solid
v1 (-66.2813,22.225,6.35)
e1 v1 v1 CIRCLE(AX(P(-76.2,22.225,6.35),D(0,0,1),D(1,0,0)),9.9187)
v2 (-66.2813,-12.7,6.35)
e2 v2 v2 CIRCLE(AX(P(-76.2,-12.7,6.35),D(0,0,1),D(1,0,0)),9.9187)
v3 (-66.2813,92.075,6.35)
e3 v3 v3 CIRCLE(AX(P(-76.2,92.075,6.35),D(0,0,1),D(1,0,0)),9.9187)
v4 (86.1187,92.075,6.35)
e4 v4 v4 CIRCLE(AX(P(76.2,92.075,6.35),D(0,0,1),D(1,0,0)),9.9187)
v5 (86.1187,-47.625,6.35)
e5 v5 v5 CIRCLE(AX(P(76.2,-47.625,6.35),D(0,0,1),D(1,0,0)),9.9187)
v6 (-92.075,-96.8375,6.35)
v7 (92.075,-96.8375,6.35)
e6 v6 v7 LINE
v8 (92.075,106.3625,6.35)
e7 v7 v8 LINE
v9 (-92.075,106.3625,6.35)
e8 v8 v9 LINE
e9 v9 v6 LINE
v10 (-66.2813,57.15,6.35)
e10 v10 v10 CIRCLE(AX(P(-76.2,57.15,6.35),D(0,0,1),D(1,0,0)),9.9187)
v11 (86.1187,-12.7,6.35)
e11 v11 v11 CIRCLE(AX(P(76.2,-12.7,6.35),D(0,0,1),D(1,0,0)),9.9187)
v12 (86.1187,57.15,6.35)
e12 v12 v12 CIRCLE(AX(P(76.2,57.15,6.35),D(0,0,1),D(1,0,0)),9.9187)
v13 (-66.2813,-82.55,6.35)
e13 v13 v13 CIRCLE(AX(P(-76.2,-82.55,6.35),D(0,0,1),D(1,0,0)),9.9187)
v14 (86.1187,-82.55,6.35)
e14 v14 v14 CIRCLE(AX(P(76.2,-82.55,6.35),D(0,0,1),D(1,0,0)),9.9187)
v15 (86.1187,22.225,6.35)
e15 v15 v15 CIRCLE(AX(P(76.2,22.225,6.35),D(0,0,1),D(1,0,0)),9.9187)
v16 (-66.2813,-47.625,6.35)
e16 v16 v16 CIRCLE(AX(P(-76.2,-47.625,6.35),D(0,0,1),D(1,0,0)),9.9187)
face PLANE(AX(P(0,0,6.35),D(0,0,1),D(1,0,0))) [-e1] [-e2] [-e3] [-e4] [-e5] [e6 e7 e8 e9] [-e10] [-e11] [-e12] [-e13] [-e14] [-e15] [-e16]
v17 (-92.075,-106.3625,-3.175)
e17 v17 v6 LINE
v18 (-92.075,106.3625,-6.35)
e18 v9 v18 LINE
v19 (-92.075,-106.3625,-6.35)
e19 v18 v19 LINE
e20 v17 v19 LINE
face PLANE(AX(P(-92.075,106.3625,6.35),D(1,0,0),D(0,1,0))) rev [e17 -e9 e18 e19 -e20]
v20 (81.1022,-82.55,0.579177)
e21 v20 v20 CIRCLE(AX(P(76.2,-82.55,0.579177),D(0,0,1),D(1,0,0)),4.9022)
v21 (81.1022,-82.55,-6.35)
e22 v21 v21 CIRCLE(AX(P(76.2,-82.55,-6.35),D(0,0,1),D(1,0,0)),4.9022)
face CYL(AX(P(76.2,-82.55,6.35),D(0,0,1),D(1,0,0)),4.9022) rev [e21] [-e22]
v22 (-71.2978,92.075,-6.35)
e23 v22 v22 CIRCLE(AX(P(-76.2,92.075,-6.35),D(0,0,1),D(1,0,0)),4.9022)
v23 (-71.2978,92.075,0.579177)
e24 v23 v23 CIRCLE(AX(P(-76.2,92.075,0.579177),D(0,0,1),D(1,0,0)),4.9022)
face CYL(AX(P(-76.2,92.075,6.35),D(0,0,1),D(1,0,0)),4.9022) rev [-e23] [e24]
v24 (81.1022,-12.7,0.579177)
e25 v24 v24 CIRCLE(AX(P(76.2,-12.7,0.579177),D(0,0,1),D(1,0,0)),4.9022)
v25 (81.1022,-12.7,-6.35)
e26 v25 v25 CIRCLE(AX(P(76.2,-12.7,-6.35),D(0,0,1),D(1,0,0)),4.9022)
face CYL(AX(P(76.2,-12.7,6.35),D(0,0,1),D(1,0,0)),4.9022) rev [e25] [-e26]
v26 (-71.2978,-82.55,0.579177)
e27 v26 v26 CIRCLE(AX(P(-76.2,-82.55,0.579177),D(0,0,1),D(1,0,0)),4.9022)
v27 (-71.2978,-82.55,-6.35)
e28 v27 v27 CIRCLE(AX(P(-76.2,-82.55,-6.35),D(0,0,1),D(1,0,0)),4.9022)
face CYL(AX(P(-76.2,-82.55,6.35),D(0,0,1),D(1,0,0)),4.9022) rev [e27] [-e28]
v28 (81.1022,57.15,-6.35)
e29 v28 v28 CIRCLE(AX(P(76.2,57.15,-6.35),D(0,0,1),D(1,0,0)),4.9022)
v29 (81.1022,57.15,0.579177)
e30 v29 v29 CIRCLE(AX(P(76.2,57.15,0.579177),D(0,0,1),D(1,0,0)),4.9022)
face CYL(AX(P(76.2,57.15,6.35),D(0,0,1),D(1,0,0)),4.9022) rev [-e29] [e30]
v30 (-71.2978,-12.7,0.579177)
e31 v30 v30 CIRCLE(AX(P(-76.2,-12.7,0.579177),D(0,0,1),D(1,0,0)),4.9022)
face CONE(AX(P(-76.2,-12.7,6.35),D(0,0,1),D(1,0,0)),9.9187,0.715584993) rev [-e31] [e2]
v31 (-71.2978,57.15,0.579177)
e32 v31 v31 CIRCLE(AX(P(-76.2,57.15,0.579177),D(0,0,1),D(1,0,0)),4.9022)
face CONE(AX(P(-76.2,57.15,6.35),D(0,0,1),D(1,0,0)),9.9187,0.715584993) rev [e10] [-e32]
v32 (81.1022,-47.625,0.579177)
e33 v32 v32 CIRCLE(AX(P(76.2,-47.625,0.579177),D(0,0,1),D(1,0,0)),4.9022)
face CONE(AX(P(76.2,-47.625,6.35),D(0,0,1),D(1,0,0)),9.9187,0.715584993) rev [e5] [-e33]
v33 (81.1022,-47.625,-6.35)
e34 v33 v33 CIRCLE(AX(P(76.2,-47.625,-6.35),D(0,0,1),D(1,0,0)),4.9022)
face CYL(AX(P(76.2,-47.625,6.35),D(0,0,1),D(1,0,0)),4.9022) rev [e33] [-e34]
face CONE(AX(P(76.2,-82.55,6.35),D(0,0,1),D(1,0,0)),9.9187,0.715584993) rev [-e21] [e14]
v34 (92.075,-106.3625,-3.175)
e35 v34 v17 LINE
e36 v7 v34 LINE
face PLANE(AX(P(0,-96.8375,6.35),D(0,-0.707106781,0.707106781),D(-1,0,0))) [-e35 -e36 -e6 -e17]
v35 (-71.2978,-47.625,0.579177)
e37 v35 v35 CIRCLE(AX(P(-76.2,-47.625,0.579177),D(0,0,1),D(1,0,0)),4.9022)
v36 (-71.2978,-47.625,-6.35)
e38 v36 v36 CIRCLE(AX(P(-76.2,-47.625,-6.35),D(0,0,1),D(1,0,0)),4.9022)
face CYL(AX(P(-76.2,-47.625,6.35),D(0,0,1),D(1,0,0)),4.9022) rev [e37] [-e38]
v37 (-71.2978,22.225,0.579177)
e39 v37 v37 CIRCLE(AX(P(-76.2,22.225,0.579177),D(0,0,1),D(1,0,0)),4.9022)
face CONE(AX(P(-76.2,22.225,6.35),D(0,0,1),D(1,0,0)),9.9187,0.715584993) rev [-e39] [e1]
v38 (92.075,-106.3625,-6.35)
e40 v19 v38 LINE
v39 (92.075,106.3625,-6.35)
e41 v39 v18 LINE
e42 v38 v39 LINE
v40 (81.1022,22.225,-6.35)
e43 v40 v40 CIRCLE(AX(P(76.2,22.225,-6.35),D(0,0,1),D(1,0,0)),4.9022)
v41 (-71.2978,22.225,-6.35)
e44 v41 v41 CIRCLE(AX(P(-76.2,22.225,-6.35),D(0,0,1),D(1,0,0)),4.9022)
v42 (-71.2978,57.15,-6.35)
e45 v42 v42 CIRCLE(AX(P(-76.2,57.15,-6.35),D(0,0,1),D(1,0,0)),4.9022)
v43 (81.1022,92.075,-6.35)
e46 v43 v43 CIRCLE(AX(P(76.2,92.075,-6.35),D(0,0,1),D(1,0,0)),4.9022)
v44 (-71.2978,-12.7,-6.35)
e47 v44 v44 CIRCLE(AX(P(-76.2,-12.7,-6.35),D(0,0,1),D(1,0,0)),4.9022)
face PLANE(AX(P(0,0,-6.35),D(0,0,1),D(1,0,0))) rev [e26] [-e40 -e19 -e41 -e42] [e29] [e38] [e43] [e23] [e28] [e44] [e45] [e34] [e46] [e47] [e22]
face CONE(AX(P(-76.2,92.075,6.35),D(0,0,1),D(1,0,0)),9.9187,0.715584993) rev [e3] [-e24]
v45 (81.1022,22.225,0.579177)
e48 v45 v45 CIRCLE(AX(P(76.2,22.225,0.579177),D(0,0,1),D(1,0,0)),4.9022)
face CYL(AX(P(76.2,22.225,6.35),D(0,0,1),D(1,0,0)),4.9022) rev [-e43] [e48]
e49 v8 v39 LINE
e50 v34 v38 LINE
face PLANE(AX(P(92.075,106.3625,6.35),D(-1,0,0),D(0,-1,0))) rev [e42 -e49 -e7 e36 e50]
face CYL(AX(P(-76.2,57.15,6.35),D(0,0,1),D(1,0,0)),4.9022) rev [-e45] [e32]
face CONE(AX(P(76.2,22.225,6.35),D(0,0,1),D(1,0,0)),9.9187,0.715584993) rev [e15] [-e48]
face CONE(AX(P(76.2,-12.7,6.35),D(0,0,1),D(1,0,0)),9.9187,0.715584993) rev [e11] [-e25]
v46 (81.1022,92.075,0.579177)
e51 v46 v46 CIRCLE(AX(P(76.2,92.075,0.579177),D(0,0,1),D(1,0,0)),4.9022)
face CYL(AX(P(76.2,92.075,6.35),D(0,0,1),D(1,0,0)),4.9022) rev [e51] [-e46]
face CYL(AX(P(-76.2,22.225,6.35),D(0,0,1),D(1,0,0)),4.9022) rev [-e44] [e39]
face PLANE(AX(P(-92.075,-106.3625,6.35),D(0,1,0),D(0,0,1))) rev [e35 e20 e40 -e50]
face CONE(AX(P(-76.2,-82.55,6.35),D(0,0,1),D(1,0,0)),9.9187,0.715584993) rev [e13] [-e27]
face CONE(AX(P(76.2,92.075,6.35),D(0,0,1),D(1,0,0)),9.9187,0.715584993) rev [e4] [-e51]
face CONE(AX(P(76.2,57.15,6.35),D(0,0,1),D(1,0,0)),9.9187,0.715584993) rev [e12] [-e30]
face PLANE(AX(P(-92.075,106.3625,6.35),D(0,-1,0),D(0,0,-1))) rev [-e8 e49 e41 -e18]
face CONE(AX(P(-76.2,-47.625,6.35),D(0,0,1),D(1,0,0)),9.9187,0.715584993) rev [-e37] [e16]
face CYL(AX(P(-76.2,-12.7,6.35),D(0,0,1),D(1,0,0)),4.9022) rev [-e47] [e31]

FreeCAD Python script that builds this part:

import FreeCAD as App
import Part
import Sketcher
from FreeCAD import Vector
Q = App.Units.Quantity


def edges_at(feature, points):
    """Names of the edges that pass closest to the given points."""
    edges = feature.Shape.Edges
    near = lambda p: min(range(len(edges)), key=lambda i: edges[i].distToShape(Part.Vertex(*p))[0])
    return sorted({f"Edge{near(p) + 1}" for p in points})


def add_polygon(sketch, points):
    """Adds a closed chain of lines whose ends are joined by coincident constraints."""
    first, n = sketch.GeometryCount, len(points)
    for a, b in zip(points, points[1:] + points[:1]):
        sketch.addGeometry(Part.LineSegment(App.Vector(*a, 0), App.Vector(*b, 0)), False)
    for i in range(n):
        sketch.addConstraint(Sketcher.Constraint("Coincident", first + i, 2, first + (i + 1) % n, 1))

doc = App.newDocument("Part")
body = doc.addObject("PartDesign::Body", "Body")

# Sketch on XY plane
sketch1 = doc.addObject("Sketcher::SketchObject", "Sketch")
body.addObject(sketch1)
sketch1.AttachmentSupport = (doc.XY_Plane, [""])
sketch1.MapMode = "FlatFace"
add_polygon(sketch1, [(-92, 106), (-92, -106), (92, -106), (92, 106)])  # lines 0-3
sketch1.addConstraint([
    Sketcher.Constraint("Vertical", 0),
    Sketcher.Constraint("Horizontal", 1),
    Sketcher.Constraint("Vertical", 2),
    Sketcher.Constraint("Horizontal", 3),
    Sketcher.Constraint("Symmetric", 0, 2, 2, 2, -1, 1),
    Sketcher.Constraint("DistanceX", 1, 1, 1, 2, Q("7.25 in")),
    Sketcher.Constraint("DistanceY", 0, 2, 0, 1, Q("8.375 in")),
])
pad1 = doc.addObject("PartDesign::Pad", "Pad")
body.addObject(pad1)
pad1.Profile = sketch1
pad1.Length = Q("0.5 in")
pad1.Midplane = True

# Sketch on XY plane
sketch2 = doc.addObject("Sketcher::SketchObject", "Sketch001")
body.addObject(sketch2)
sketch2.AttachmentSupport = (doc.XY_Plane, [""])
sketch2.MapMode = "FlatFace"
sketch2.AttachmentOffset = App.Placement(Vector(0, 0, 0.25 * 25.4), App.Rotation())
sketch2.addGeometry([
    Part.Circle(Vector(-76.2, 92.1, 0), Vector(0, 0, 1), 4.9),  # 0
    Part.Circle(Vector(-76.2, 57.1, 0), Vector(0, 0, 1), 4.9),  # 1
    Part.Circle(Vector(-76.2, 22.2, 0), Vector(0, 0, 1), 4.9),  # 2
    Part.Circle(Vector(-76.2, -12.7, 0), Vector(0, 0, 1), 4.9),  # 3
    Part.Circle(Vector(-76.2, -47.6, 0), Vector(0, 0, 1), 4.9),  # 4
    Part.Circle(Vector(-76.2, -82.5, 0), Vector(0, 0, 1), 4.9),  # 5
    Part.Circle(Vector(76.2, -82.5, 0), Vector(0, 0, 1), 4.9),  # 6
    Part.Circle(Vector(76.2, -47.6, 0), Vector(0, 0, 1), 4.9),  # 7
    Part.Circle(Vector(76.2, -12.7, 0), Vector(0, 0, 1), 4.9),  # 8
    Part.Circle(Vector(76.2, 22.2, 0), Vector(0, 0, 1), 4.9),  # 9
    Part.Circle(Vector(76.2, 57.1, 0), Vector(0, 0, 1), 4.9),  # 10
    Part.Circle(Vector(76.2, 92.1, 0), Vector(0, 0, 1), 4.9),  # 11
], False)
sketch2.addConstraint([
    Sketcher.Constraint("Equal", 0, 1),
    Sketcher.Constraint("Equal", 1, 2),
    Sketcher.Constraint("Equal", 2, 3),
    Sketcher.Constraint("Equal", 3, 4),
    Sketcher.Constraint("Equal", 4, 5),
    Sketcher.Constraint("Equal", 5, 6),
    Sketcher.Constraint("Equal", 6, 7),
    Sketcher.Constraint("Equal", 7, 8),
    Sketcher.Constraint("Equal", 8, 9),
    Sketcher.Constraint("Equal", 9, 10),
    Sketcher.Constraint("Equal", 10, 11),
    Sketcher.Constraint("Symmetric", 5, 3, 6, 3, -2),
    Sketcher.Constraint("Symmetric", 4, 3, 7, 3, -2),
    Sketcher.Constraint("Symmetric", 3, 3, 8, 3, -2),
    Sketcher.Constraint("Symmetric", 2, 3, 9, 3, -2),
    Sketcher.Constraint("Symmetric", 1, 3, 10, 3, -2),
    Sketcher.Constraint("Symmetric", 0, 3, 11, 3, -2),
    Sketcher.Constraint("Vertical", 0, 3, 1, 3),
    Sketcher.Constraint("Vertical", 1, 3, 2, 3),
    Sketcher.Constraint("Vertical", 2, 3, 3, 3),
    Sketcher.Constraint("Vertical", 3, 3, 4, 3),
    Sketcher.Constraint("Vertical", 4, 3, 5, 3),
    Sketcher.Constraint("Diameter", 0, Q("0.386 in")),
    Sketcher.Constraint("DistanceX", 0, 3, -1, 1, Q("3 in")),
    Sketcher.Constraint("DistanceY", 3, 3, -1, 1, Q("0.5 in")),
    Sketcher.Constraint("DistanceY", 4, 3, 0, 3, Q("5.5 in")),
    Sketcher.Constraint("DistanceY", 5, 3, 1, 3, Q("5.5 in")),
    Sketcher.Constraint("DistanceY", -1, 1, 1, 3, Q("2.25 in")),
    Sketcher.Constraint("DistanceY", 2, 3, 0, 3, Q("2.75 in")),
    Sketcher.Constraint("DistanceY", -1, 1, 0, 3, Q("3.625 in")),
])
doc.recompute()
hole = doc.addObject("PartDesign::Hole", "Hole")
body.addObject(hole)
hole.Profile = sketch2
hole.ThreadType = "None"
hole.Diameter = Q("0.386 in")
hole.DepthType = "ThroughAll"
hole.HoleCutType = "Countersink"
hole.HoleCutDiameter = Q("0.781 in")
hole.HoleCutCountersinkAngle = 82
doc.recompute()

chamfer = doc.addObject("PartDesign::Chamfer", "Chamfer")
body.addObject(chamfer)
chamfer.Base = (hole, edges_at(hole, [(0, -106.362, 6.35)]))
chamfer.Size = Q("0.375 in")

doc.recompute()
